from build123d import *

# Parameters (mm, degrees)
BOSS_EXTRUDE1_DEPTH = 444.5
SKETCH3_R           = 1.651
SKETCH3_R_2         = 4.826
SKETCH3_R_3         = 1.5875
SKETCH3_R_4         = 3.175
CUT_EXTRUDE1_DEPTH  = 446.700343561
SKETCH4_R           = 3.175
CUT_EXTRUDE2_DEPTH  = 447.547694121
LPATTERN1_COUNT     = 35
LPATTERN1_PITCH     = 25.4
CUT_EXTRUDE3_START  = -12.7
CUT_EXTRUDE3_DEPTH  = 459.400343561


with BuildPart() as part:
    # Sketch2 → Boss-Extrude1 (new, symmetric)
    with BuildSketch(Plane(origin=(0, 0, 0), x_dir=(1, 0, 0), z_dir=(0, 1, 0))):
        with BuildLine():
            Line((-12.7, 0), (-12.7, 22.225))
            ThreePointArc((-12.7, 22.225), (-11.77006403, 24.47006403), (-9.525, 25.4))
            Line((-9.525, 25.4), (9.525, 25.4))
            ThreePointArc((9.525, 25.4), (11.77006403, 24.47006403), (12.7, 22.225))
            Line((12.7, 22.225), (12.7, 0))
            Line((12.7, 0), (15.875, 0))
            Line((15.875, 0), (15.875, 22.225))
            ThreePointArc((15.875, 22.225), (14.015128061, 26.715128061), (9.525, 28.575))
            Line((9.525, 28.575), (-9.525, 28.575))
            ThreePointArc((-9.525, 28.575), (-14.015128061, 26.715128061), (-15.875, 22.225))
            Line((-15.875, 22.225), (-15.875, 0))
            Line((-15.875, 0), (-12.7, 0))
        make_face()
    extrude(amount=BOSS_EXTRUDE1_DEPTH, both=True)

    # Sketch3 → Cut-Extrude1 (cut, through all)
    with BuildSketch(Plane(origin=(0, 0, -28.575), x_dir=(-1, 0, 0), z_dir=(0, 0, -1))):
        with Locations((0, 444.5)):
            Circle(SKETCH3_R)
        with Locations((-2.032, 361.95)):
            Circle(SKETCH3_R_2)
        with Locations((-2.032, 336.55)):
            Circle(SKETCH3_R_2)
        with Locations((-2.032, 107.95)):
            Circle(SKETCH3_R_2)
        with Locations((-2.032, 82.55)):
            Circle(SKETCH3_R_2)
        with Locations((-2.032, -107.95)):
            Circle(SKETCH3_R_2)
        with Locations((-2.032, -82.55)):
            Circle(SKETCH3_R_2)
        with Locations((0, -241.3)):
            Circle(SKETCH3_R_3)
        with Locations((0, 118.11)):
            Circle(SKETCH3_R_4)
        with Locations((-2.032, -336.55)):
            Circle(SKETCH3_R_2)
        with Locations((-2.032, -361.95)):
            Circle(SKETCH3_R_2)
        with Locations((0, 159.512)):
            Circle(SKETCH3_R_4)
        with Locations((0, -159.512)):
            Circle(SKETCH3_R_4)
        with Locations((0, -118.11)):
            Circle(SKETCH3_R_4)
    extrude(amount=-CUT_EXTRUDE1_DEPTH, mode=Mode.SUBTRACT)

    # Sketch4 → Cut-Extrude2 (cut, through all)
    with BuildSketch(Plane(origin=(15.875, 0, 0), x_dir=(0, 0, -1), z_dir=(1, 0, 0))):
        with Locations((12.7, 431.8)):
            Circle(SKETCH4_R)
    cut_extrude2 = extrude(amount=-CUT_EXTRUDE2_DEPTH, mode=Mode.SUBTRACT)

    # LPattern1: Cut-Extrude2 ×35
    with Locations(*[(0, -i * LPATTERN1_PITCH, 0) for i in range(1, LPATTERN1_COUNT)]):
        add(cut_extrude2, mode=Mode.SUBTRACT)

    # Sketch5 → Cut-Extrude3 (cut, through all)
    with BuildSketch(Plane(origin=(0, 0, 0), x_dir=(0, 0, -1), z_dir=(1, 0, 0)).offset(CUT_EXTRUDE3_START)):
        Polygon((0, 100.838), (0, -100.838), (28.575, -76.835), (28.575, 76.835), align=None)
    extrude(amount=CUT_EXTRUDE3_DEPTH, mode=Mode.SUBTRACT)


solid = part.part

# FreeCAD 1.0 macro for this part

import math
import FreeCAD as App
import Part
import Sketcher

V = App.Vector
Q = App.Units.Quantity


def add_polygon(sketch, points):
    """Adds a closed chain of lines whose ends are joined by coincident constraints."""
    first, n = sketch.GeometryCount, len(points)
    for a, b in zip(points, points[1:] + points[:1]):
        sketch.addGeometry(Part.LineSegment(App.Vector(*a, 0), App.Vector(*b, 0)), False)
    for i in range(n):
        sketch.addConstraint(Sketcher.Constraint("Coincident", first + i, 2, first + (i + 1) % n, 1))

doc = App.newDocument("Part")
params = doc.addObject("Spreadsheet::Sheet", "Params")
for row, (alias, value) in enumerate([
    ("sketch1_radius", "0.25 in"),
    ("sketch1_radius2", "0.125 in"),
    ("sketch1_width", "0.75 in"),
    ("pad1_length", "35 in"),
    ("sketch2_diameter", "0.13 in"),
    ("sketch2_diameter2", "0.38 in"),
    ("sketch2_diameter3", "0.25 in"),
    ("sketch2_diameter4", "0.125 in"),
    ("sketch3_diameter", "0.25 in"),
    ("linearpattern_pitch", "1 in"),
    ("sketch4_width", "7.94 in"),
    ("sketch4_width2", "6.05 in"),
], start=1):
    params.set(f"A{row}", alias)
    params.set(f"B{row}", "=" + value)
    params.setAlias(f"B{row}", alias)

body = doc.addObject("PartDesign::Body", "Body")

# Sketch on XZ plane
sketch1 = body.newObject("Sketcher::SketchObject", "Sketch")
sketch1.AttachmentSupport = (doc.getObject("XZ_Plane"), [""])
sketch1.MapMode = "FlatFace"
sketch1.addGeometry(Part.LineSegment(V(-12.7, 0, 0), V(-12.7, -22.2, 0)), False)
sketch1.addGeometry(Part.ArcOfCircle(Part.Circle(V(-9.5, -22.2, 0), V(0, 0, 1), 3.2), math.radians(-180), math.radians(-90)), False)
sketch1.addGeometry(Part.LineSegment(V(-9.5, -25.4, 0), V(9.5, -25.4, 0)), False)
sketch1.addGeometry(Part.ArcOfCircle(Part.Circle(V(9.5, -22.2, 0), V(0, 0, 1), 3.2), math.radians(-90), math.radians(0)), False)
sketch1.addGeometry(Part.LineSegment(V(12.7, -22.2, 0), V(12.7, 0, 0)), False)
sketch1.addGeometry(Part.LineSegment(V(12.7, 0, 0), V(15.9, 0, 0)), False)
sketch1.addGeometry(Part.LineSegment(V(15.9, 0, 0), V(15.9, -22.2, 0)), False)
sketch1.addGeometry(Part.ArcOfCircle(Part.Circle(V(9.5, -22.2, 0), V(0, 0, 1), 6.3), math.radians(-90), math.radians(0)), False)
sketch1.addGeometry(Part.LineSegment(V(9.5, -28.6, 0), V(-9.5, -28.6, 0)), False)
sketch1.addGeometry(Part.ArcOfCircle(Part.Circle(V(-9.5, -22.2, 0), V(0, 0, 1), 6.3), math.radians(180), math.radians(270)), False)
sketch1.addGeometry(Part.LineSegment(V(-15.9, -22.2, 0), V(-15.9, 0, 0)), False)
sketch1.addGeometry(Part.LineSegment(V(-15.9, 0, 0), V(-12.7, 0, 0)), False)
sketch1.addConstraint(Sketcher.Constraint("Tangent", 0, 2, 1, 1))
sketch1.addConstraint(Sketcher.Constraint("Tangent", 1, 2, 2, 1))
sketch1.addConstraint(Sketcher.Constraint("Tangent", 2, 2, 3, 1))
sketch1.addConstraint(Sketcher.Constraint("Tangent", 3, 2, 4, 1))
sketch1.addConstraint(Sketcher.Constraint("Coincident", 4, 2, 5, 1))
sketch1.addConstraint(Sketcher.Constraint("Coincident", 5, 2, 6, 1))
sketch1.addConstraint(Sketcher.Constraint("Tangent", 6, 2, 7, 2))
sketch1.addConstraint(Sketcher.Constraint("Tangent", 7, 1, 8, 1))
sketch1.addConstraint(Sketcher.Constraint("Tangent", 8, 2, 9, 2))
sketch1.addConstraint(Sketcher.Constraint("Tangent", 9, 1, 10, 1))
sketch1.addConstraint(Sketcher.Constraint("Coincident", 10, 2, 11, 1))
sketch1.addConstraint(Sketcher.Constraint("Coincident", 11, 2, 0, 1))
sketch1.addConstraint(Sketcher.Constraint("Vertical", 0))
sketch1.addConstraint(Sketcher.Constraint("Horizontal", 2))
sketch1.addConstraint(Sketcher.Constraint("Vertical", 4))
sketch1.addConstraint(Sketcher.Constraint("Horizontal", 5))
sketch1.addConstraint(Sketcher.Constraint("Vertical", 6))
sketch1.addConstraint(Sketcher.Constraint("Horizontal", 8))
sketch1.addConstraint(Sketcher.Constraint("Vertical", 10))
sketch1.addConstraint(Sketcher.Constraint("Horizontal", 11))
sketch1.addConstraint(Sketcher.Constraint("Coincident", 7, 3, 3, 3))
sketch1.addConstraint(Sketcher.Constraint("Coincident", 9, 3, 1, 3))
sketch1.addConstraint(Sketcher.Constraint("Equal", 1, 3))
sketch1.addConstraint(Sketcher.Constraint("Symmetric", 5, 2, 10, 2, -1, 1))
sketch1.addConstraint(Sketcher.Constraint("PointOnObject", 4, 2, -1))
sketch1.addConstraint(Sketcher.Constraint("Radius", 7, Q("0.25 in")))
sketch1.addConstraint(Sketcher.Constraint("DistanceY", 1, 2, -1, 1, Q("1 in")))
sketch1.addConstraint(Sketcher.Constraint("Radius", 1, Q("0.125 in")))
sketch1.addConstraint(Sketcher.Constraint("DistanceX", 2, 1, 2, 2, Q("0.75 in")))
sketch1.setExpression("Constraints[25]", "Params.sketch1_radius")
sketch1.setExpression("Constraints[27]", "Params.sketch1_radius2")
sketch1.setExpression("Constraints[28]", "Params.sketch1_width")
pad1 = body.newObject("PartDesign::Pad", "Pad")
pad1.Profile = sketch1
pad1.setExpression("Length", "Params.pad1_length")
pad1.Midplane = True

# Sketch on XY plane
sketch2 = body.newObject("Sketcher::SketchObject", "Sketch001")
sketch2.AttachmentSupport = (doc.getObject("XY_Plane"), [""])
sketch2.MapMode = "FlatFace"
sketch2.AttachmentOffset = App.Placement(V(0, 0, -1.125 * 25.4), App.Rotation())
sketch2.addGeometry(Part.Circle(V(0, 444.5, 0), V(0, 0, 1), 1.7), False)
sketch2.addGeometry(Part.Circle(V(2, 361.9, 0), V(0, 0, 1), 4.8), False)
sketch2.addGeometry(Part.Circle(V(2, 336.6, 0), V(0, 0, 1), 4.8), False)
sketch2.addGeometry(Part.Circle(V(2, 108, 0), V(0, 0, 1), 4.8), False)
sketch2.addGeometry(Part.Circle(V(2, 82.5, 0), V(0, 0, 1), 4.8), False)
sketch2.addGeometry(Part.Circle(V(2, -108, 0), V(0, 0, 1), 4.8), False)
sketch2.addGeometry(Part.Circle(V(2, -82.5, 0), V(0, 0, 1), 4.8), False)
sketch2.addGeometry(Part.Circle(V(0, -241.3, 0), V(0, 0, 1), 1.6), False)
sketch2.addGeometry(Part.Circle(V(0, 118.1, 0), V(0, 0, 1), 3.2), False)
sketch2.addGeometry(Part.Circle(V(2, -336.6, 0), V(0, 0, 1), 4.8), False)
sketch2.addGeometry(Part.Circle(V(2, -361.9, 0), V(0, 0, 1), 4.8), False)
sketch2.addGeometry(Part.Circle(V(0, 159.5, 0), V(0, 0, 1), 3.2), False)
sketch2.addGeometry(Part.Circle(V(0, -159.5, 0), V(0, 0, 1), 3.2), False)
sketch2.addGeometry(Part.Circle(V(0, -118.1, 0), V(0, 0, 1), 3.2), False)
sketch2.addConstraint(Sketcher.Constraint("Equal", 1, 2))
sketch2.addConstraint(Sketcher.Constraint("Equal", 2, 3))
sketch2.addConstraint(Sketcher.Constraint("Equal", 3, 4))
sketch2.addConstraint(Sketcher.Constraint("Equal", 4, 5))
sketch2.addConstraint(Sketcher.Constraint("Equal", 5, 6))
sketch2.addConstraint(Sketcher.Constraint("Equal", 6, 9))
sketch2.addConstraint(Sketcher.Constraint("Equal", 9, 10))
sketch2.addConstraint(Sketcher.Constraint("Equal", 8, 11))
sketch2.addConstraint(Sketcher.Constraint("Equal", 11, 12))
sketch2.addConstraint(Sketcher.Constraint("Equal", 12, 13))
sketch2.addConstraint(Sketcher.Constraint("Symmetric", 11, 3, 12, 3, -1, 1))
sketch2.addConstraint(Sketcher.Constraint("Symmetric", 8, 3, 13, 3, -1, 1))
sketch2.addConstraint(Sketcher.Constraint("Symmetric", 3, 3, 5, 3, -1))
sketch2.addConstraint(Sketcher.Constraint("Symmetric", 4, 3, 6, 3, -1))
sketch2.addConstraint(Sketcher.Constraint("Symmetric", 2, 3, 9, 3, -1))
sketch2.addConstraint(Sketcher.Constraint("Symmetric", 1, 3, 10, 3, -1))
sketch2.addConstraint(Sketcher.Constraint("PointOnObject", 0, 3, -2))
sketch2.addConstraint(Sketcher.Constraint("PointOnObject", 7, 3, -2))
sketch2.addConstraint(Sketcher.Constraint("PointOnObject", 8, 3, -2))
sketch2.addConstraint(Sketcher.Constraint("PointOnObject", 11, 3, -2))
sketch2.addConstraint(Sketcher.Constraint("Vertical", 1, 3, 2, 3))
sketch2.addConstraint(Sketcher.Constraint("Vertical", 2, 3, 3, 3))
sketch2.addConstraint(Sketcher.Constraint("Vertical", 3, 3, 4, 3))
sketch2.addConstraint(Sketcher.Constraint("Diameter", 0, Q("0.13 in")))
sketch2.addConstraint(Sketcher.Constraint("Diameter", 1, Q("0.38 in")))
sketch2.addConstraint(Sketcher.Constraint("Diameter", 8, Q("0.25 in")))
sketch2.addConstraint(Sketcher.Constraint("Diameter", 7, Q("0.125 in")))
sketch2.addConstraint(Sketcher.Constraint("DistanceY", 2, 3, 1, 3, Q("1 in")))
sketch2.addConstraint(Sketcher.Constraint("DistanceY", 3, 3, 2, 3, Q("9 in")))
sketch2.addConstraint(Sketcher.Constraint("DistanceY", 4, 3, 3, 3, Q("1 in")))
sketch2.addConstraint(Sketcher.Constraint("DistanceY", -1, 1, 0, 3, Q("17.5 in")))
sketch2.addConstraint(Sketcher.Constraint("DistanceY", 7, 3, -1, 1, Q("9.5 in")))
sketch2.addConstraint(Sketcher.Constraint("DistanceY", 5, 3, 4, 3, Q("7.5 in")))
sketch2.addConstraint(Sketcher.Constraint("DistanceY", 3, 3, 8, 3, Q("0.4 in")))
sketch2.addConstraint(Sketcher.Constraint("DistanceX", -1, 1, 1, 3, Q("0.08 in")))
sketch2.addConstraint(Sketcher.Constraint("DistanceY", -1, 1, 11, 3, Q("6.28 in")))
sketch2.setExpression("Constraints[23]", "Params.sketch2_diameter")
sketch2.setExpression("Constraints[24]", "Params.sketch2_diameter2")
sketch2.setExpression("Constraints[25]", "Params.sketch2_diameter3")
sketch2.setExpression("Constraints[26]", "Params.sketch2_diameter4")
pocket1 = body.newObject("PartDesign::Pocket", "Pocket")
pocket1.Profile = sketch2
pocket1.Type = "ThroughAll"
pocket1.Reversed = True

# Sketch on YZ plane
sketch3 = body.newObject("Sketcher::SketchObject", "Sketch002")
sketch3.AttachmentSupport = (doc.getObject("YZ_Plane"), [""])
sketch3.MapMode = "FlatFace"
sketch3.AttachmentOffset = App.Placement(V(0, 0, 0.625 * 25.4), App.Rotation())
sketch3.addGeometry(Part.Circle(V(431.8, -12.7, 0), V(0, 0, 1), 3.2), False)
sketch3.addConstraint(Sketcher.Constraint("Diameter", 0, Q("0.25 in")))
sketch3.addConstraint(Sketcher.Constraint("DistanceX", -1, 1, 0, 3, Q("17 in")))
sketch3.addConstraint(Sketcher.Constraint("DistanceY", 0, 3, -1, 1, Q("0.5 in")))
sketch3.setExpression("Constraints[0]", "Params.sketch3_diameter")
pocket2 = body.newObject("PartDesign::Pocket", "Pocket001")
pocket2.Profile = sketch3
pocket2.Type = "ThroughAll"
doc.recompute()

linearpattern = body.newObject("PartDesign::LinearPattern", "LinearPattern")
linearpattern.Originals = [pocket2]
linearpattern.Direction = (doc.getObject("Y_Axis"), [""])
linearpattern.Mode = "offset"
linearpattern.setExpression("Offset", "Params.linearpattern_pitch")
linearpattern.Occurrences = 35
linearpattern.Reversed = True
body.Tip = linearpattern

# Sketch on YZ plane
sketch4 = body.newObject("Sketcher::SketchObject", "Sketch003")
sketch4.AttachmentSupport = (doc.getObject("YZ_Plane"), [""])
sketch4.MapMode = "FlatFace"
sketch4.AttachmentOffset = App.Placement(V(0, 0, -0.5 * 25.4), App.Rotation())
add_polygon(sketch4, [(101, 0), (-101, 0), (-77, -29), (77, -29)])  # lines 0-3
sketch4.addConstraint(Sketcher.Constraint("Horizontal", 0))
sketch4.addConstraint(Sketcher.Constraint("Horizontal", 2))
sketch4.addConstraint(Sketcher.Constraint("Symmetric", 0, 2, 3, 2, -1, 1))
sketch4.addConstraint(Sketcher.Constraint("Equal", 1, 3))
sketch4.addConstraint(Sketcher.Constraint("DistanceX", 0, 2, 0, 1, Q("7.94 in")))
sketch4.addConstraint(Sketcher.Constraint("DistanceX", 2, 1, 2, 2, Q("6.05 in")))
sketch4.addConstraint(Sketcher.Constraint("DistanceY", 1, 2, -1, 1, Q("1.125 in")))
sketch4.setExpression("Constraints[8]", "Params.sketch4_width")
sketch4.setExpression("Constraints[9]", "Params.sketch4_width2")
pocket3 = body.newObject("PartDesign::Pocket", "Pocket002")
pocket3.Profile = sketch4
pocket3.Type = "ThroughAll"
pocket3.Reversed = True

doc.recompute()
